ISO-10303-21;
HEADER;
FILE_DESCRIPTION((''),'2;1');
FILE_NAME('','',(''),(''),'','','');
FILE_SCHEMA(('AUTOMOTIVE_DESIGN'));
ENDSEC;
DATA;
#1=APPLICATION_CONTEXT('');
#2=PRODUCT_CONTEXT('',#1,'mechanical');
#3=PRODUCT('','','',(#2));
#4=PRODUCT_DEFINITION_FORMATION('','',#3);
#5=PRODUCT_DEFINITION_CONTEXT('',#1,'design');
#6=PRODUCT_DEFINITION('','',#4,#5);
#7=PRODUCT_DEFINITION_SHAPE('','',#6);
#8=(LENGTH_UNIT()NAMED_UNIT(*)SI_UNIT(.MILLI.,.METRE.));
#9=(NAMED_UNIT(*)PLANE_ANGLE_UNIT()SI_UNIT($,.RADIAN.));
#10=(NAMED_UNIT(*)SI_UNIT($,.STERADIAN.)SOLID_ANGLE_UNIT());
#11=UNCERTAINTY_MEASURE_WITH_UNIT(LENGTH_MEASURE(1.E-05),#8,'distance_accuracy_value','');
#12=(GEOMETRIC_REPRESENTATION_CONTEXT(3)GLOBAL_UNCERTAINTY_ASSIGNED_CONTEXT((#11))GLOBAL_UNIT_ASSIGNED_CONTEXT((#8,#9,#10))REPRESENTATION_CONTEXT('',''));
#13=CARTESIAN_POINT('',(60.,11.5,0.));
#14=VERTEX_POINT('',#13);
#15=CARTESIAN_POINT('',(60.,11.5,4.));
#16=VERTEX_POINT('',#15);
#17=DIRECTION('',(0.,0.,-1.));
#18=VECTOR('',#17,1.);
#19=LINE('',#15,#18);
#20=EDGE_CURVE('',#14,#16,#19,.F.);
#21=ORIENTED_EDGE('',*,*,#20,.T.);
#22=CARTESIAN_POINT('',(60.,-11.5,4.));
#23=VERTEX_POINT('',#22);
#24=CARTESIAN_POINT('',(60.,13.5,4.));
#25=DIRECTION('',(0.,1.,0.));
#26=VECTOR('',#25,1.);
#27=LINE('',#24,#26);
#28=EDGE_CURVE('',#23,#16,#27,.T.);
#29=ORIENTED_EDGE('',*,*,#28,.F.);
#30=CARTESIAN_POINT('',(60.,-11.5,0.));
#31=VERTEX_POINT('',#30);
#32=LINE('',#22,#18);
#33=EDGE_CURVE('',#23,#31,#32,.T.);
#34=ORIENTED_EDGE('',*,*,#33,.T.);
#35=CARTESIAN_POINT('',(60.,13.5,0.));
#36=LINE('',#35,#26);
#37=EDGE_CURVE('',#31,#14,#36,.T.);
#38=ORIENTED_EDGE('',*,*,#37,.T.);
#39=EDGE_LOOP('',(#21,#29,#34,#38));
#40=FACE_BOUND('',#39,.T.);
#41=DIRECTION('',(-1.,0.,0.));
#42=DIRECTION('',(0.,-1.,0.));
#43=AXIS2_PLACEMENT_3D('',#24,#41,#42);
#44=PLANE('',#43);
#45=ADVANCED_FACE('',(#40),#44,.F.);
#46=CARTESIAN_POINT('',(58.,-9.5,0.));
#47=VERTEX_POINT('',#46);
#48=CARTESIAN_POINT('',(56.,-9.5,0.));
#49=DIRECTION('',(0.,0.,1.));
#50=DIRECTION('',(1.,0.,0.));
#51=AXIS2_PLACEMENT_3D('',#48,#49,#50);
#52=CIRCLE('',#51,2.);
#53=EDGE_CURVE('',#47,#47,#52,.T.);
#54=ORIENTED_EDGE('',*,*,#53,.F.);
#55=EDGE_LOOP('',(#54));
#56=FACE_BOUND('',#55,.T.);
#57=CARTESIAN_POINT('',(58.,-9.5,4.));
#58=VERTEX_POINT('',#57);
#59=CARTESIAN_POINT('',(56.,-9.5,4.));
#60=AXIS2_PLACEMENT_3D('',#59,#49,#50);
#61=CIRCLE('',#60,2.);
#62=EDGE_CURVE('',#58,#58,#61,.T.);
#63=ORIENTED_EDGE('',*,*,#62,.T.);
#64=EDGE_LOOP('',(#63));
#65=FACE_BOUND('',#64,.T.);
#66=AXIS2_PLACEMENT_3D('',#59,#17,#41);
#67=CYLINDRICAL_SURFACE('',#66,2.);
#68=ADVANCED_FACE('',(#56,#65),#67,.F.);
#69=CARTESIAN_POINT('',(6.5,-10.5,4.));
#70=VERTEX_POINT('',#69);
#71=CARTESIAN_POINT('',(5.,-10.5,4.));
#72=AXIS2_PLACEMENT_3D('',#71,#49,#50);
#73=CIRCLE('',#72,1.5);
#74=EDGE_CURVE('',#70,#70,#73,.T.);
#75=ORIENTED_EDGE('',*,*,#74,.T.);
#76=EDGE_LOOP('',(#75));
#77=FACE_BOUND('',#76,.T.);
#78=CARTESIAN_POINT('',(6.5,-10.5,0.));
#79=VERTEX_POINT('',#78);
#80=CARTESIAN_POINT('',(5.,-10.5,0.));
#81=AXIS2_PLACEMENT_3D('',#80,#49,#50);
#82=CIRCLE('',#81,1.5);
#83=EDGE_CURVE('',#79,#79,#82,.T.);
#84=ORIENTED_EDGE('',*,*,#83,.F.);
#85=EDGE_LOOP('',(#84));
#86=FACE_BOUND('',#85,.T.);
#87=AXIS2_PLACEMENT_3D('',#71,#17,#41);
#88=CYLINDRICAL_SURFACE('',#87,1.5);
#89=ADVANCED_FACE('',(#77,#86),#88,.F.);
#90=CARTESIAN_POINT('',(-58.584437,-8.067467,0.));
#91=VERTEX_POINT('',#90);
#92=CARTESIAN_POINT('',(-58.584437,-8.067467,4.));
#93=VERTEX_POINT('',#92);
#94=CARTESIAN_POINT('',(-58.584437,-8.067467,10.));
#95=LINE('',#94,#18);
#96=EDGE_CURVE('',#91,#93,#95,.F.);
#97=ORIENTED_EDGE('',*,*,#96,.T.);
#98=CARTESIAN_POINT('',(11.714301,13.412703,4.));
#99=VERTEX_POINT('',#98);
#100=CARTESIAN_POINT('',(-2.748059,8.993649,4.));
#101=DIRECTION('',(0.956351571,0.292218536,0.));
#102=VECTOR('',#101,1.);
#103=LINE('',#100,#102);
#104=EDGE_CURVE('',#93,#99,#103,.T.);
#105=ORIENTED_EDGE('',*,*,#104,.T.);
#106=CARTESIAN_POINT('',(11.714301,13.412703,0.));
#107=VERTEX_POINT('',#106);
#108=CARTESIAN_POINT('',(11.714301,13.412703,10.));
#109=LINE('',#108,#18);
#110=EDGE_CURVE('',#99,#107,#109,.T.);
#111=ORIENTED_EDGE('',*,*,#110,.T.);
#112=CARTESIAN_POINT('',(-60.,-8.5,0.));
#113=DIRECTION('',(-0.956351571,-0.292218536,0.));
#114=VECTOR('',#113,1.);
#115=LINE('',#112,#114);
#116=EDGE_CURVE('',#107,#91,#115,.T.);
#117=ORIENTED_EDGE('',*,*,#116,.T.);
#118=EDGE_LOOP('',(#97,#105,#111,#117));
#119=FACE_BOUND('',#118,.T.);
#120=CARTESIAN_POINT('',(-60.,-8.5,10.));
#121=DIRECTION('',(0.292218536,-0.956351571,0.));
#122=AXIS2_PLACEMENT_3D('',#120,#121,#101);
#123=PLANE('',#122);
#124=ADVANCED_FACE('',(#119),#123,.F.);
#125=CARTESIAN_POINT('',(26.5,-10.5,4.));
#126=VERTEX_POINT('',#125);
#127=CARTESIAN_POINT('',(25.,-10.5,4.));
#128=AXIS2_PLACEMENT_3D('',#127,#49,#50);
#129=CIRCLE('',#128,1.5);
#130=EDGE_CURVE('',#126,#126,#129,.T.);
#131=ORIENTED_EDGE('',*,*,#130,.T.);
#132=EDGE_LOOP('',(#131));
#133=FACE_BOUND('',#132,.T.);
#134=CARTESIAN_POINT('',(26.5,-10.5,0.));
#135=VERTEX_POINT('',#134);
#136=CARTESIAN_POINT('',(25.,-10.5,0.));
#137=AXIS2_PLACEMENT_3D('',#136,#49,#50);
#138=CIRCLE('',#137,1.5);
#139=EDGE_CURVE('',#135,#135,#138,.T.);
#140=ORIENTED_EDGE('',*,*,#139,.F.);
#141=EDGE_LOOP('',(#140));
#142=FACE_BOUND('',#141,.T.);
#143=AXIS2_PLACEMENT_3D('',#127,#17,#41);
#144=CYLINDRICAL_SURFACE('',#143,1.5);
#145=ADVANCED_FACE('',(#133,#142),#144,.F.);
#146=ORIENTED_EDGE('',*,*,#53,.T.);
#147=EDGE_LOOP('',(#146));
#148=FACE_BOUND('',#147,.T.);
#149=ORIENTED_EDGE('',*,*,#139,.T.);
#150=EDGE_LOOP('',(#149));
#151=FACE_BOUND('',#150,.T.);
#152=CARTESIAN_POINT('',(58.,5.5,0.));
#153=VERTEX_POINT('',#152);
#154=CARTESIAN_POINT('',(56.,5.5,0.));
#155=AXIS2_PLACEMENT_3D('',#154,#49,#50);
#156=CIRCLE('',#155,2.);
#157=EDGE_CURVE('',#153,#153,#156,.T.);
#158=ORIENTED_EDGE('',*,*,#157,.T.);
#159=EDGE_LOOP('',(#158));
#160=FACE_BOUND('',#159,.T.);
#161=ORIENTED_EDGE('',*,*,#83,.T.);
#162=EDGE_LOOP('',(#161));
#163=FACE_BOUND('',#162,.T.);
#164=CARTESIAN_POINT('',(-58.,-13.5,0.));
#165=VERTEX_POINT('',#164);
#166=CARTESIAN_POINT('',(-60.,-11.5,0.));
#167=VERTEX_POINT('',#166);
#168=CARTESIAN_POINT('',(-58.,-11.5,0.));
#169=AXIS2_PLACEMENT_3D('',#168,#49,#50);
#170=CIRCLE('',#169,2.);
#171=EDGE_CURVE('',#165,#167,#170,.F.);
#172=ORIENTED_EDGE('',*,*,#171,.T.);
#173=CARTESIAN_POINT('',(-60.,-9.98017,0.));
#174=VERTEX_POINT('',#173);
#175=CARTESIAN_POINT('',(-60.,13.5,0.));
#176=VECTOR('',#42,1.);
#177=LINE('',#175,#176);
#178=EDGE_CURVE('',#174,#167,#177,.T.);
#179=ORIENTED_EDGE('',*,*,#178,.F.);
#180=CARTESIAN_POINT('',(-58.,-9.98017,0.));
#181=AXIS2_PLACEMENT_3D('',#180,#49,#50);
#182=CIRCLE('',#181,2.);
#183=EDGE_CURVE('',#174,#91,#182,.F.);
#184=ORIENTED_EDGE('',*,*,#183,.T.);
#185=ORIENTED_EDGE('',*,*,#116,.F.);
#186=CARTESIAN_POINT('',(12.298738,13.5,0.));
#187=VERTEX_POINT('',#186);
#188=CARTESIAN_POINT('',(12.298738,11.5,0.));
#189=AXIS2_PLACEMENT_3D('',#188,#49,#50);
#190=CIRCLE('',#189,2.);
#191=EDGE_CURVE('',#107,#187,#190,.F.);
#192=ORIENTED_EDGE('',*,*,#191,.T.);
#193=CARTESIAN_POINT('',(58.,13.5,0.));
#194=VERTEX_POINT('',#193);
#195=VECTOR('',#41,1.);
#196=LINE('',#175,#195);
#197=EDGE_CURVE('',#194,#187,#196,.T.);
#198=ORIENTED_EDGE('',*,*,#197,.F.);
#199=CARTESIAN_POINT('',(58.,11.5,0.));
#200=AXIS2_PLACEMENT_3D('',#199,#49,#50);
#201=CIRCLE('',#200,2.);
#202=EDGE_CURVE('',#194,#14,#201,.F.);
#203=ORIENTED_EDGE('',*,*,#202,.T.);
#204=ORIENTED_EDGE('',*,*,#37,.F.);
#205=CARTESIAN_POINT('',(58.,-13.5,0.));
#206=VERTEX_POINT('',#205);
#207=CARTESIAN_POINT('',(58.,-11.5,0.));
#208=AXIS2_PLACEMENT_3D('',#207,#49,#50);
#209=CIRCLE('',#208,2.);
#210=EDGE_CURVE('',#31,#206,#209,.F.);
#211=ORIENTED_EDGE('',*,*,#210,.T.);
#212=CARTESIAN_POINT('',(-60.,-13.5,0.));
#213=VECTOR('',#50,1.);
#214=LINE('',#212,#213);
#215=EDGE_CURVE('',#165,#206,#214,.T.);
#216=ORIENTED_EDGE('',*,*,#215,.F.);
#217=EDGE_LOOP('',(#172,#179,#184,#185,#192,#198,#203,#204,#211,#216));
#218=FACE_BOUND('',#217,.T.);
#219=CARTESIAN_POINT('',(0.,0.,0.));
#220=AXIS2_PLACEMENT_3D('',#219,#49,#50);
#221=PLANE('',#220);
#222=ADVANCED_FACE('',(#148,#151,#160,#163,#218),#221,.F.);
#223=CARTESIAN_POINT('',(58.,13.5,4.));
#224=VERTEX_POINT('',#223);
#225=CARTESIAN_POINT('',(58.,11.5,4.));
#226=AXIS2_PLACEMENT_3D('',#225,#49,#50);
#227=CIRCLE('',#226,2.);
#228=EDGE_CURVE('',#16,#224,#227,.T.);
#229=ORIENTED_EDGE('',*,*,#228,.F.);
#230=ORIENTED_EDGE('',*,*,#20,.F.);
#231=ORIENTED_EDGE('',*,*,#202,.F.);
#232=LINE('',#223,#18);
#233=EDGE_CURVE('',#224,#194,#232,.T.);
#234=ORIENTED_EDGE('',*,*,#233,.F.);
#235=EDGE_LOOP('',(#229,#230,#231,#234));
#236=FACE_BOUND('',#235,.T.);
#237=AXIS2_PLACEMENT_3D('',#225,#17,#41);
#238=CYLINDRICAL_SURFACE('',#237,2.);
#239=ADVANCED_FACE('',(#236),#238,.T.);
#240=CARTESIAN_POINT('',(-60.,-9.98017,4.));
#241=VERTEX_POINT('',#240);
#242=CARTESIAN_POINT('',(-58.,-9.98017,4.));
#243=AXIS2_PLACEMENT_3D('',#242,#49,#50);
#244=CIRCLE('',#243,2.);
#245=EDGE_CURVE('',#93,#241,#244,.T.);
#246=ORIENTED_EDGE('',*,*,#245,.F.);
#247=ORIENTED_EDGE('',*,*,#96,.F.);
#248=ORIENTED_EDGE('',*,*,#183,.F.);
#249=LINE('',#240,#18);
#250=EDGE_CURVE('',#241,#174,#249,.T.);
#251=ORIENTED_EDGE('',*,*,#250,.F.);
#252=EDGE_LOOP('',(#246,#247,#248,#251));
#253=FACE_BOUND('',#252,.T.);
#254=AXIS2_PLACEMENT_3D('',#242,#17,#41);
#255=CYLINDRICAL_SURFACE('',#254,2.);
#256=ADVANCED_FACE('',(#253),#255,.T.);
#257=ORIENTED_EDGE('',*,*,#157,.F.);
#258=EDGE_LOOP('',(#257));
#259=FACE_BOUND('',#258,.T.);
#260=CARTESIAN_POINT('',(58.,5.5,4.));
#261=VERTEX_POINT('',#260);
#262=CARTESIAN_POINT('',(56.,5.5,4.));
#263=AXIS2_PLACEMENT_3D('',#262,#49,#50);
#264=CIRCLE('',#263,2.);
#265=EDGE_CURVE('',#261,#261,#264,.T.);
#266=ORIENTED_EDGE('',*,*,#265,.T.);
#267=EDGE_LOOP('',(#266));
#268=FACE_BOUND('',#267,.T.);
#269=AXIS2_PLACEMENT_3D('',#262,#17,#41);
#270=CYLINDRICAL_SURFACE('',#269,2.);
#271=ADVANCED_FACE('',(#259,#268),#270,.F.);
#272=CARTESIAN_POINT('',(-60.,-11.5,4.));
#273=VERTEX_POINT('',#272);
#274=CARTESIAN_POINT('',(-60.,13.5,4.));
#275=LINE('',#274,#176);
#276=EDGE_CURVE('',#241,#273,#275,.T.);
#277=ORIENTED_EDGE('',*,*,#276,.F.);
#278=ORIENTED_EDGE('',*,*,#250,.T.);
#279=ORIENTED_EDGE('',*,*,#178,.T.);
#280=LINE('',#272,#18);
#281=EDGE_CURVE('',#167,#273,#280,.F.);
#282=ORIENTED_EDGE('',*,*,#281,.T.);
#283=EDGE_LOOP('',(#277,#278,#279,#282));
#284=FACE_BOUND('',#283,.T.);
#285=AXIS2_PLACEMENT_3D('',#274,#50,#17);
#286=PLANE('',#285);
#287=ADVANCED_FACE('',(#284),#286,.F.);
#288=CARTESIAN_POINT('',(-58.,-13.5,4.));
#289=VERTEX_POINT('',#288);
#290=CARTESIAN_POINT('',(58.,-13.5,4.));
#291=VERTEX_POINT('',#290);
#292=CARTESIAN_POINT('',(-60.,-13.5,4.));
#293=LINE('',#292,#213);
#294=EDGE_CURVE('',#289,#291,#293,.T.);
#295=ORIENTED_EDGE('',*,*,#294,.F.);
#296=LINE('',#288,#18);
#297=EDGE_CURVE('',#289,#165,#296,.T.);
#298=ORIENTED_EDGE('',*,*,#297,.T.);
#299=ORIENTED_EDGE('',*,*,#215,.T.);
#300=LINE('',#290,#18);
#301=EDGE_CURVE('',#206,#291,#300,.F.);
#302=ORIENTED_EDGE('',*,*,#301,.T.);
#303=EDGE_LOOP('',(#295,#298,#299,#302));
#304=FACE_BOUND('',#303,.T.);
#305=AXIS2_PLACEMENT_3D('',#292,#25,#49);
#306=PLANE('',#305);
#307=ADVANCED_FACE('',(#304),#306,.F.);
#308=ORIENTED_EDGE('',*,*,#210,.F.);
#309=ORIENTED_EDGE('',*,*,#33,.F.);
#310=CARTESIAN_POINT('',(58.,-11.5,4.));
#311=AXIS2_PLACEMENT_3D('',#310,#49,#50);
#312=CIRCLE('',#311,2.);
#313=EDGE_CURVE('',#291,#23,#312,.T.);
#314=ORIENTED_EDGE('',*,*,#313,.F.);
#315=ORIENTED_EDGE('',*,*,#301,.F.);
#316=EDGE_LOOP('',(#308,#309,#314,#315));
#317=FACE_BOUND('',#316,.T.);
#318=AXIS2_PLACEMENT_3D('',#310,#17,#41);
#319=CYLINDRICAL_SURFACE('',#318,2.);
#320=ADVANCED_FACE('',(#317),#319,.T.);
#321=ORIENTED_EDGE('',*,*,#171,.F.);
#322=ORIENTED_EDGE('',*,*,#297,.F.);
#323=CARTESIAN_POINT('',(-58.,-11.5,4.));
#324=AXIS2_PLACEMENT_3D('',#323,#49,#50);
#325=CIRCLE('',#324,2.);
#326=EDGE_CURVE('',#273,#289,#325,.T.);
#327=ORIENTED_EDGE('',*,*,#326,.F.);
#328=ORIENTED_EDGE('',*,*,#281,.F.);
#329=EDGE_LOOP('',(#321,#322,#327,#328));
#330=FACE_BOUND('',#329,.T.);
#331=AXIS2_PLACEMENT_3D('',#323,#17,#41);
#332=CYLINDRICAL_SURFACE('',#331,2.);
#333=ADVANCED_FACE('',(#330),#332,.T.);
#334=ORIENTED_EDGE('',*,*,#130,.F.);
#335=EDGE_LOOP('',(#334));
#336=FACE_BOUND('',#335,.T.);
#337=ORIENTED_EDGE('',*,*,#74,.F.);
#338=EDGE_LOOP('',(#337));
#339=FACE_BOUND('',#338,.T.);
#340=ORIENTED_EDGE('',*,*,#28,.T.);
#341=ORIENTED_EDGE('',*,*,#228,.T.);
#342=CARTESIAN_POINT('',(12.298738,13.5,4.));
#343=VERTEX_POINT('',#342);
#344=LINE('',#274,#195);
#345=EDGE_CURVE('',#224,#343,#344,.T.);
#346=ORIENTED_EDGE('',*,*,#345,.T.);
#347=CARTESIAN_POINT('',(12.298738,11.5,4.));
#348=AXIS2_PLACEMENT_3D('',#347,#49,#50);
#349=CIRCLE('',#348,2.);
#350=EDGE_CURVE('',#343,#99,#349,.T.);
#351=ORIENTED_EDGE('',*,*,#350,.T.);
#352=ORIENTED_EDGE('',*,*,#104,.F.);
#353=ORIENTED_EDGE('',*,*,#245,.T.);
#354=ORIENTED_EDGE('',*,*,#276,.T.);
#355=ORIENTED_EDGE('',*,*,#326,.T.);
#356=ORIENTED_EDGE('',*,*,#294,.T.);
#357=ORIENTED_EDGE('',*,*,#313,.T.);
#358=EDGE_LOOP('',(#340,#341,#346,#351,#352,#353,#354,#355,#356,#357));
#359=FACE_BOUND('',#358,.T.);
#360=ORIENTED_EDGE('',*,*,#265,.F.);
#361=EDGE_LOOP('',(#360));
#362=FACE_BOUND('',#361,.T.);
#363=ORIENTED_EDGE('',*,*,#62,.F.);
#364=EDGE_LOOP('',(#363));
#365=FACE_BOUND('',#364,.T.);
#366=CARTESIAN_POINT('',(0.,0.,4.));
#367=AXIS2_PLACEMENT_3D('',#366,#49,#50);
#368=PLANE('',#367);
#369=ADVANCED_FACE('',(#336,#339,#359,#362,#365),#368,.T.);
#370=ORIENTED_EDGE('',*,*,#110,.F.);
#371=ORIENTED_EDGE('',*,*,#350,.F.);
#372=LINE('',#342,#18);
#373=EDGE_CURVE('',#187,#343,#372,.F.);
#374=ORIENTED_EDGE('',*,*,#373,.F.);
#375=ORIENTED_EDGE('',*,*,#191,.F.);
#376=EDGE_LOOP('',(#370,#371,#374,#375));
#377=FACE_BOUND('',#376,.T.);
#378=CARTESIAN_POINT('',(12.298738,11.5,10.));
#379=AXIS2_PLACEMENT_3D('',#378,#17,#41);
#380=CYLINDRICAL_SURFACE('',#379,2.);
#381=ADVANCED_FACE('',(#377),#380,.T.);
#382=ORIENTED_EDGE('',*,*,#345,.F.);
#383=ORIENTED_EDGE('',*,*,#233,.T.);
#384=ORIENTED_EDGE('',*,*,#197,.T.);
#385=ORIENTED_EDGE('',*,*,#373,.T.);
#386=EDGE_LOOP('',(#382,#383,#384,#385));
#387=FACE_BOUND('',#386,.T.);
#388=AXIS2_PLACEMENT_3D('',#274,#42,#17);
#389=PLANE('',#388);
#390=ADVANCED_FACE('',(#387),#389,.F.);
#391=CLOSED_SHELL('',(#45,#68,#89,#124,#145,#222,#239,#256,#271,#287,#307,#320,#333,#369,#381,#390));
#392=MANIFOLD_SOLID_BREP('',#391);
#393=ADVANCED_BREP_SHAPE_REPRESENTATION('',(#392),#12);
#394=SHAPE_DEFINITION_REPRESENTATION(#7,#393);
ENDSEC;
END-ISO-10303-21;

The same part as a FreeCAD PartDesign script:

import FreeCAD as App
import Part
import Sketcher
from FreeCAD import Vector


def edges_at(feature, points):
    """Names of the edges that pass closest to the given points."""
    edges = feature.Shape.Edges
    near = lambda p: min(range(len(edges)), key=lambda i: edges[i].distToShape(Part.Vertex(*p))[0])
    return sorted({f"Edge{near(p) + 1}" for p in points})

doc = App.newDocument("Part")
body = doc.addObject("PartDesign::Body", "Body")

# Sketch on XY plane
sketch1 = body.newObject("Sketcher::SketchObject", "Sketch")
sketch1.AttachmentSupport = (doc.getObject("XY_Plane"), [""])
sketch1.MapMode = "FlatFace"
sketch1.addGeometry([
    Part.LineSegment(Vector(-60, 13.5, 0), Vector(-60, -13.5, 0)),  # 0
    Part.LineSegment(Vector(-60, -13.5, 0), Vector(60, -13.5, 0)),  # 1
    Part.LineSegment(Vector(60, -13.5, 0), Vector(60, 13.5, 0)),  # 2
    Part.LineSegment(Vector(60, 13.5, 0), Vector(-60, 13.5, 0)),  # 3
    Part.Circle(Vector(5, -10.5, 0), Vector(0, 0, 1), 1.5),  # 4
    Part.Circle(Vector(25, -10.5, 0), Vector(0, 0, 1), 1.5),  # 5
    Part.Circle(Vector(56, -9.5, 0), Vector(0, 0, 1), 2),  # 6
    Part.Circle(Vector(56, 5.5, 0), Vector(0, 0, 1), 2),  # 7
], False)
sketch1.addConstraint([
    Sketcher.Constraint("Coincident", 0, 2, 1, 1),
    Sketcher.Constraint("Coincident", 1, 2, 2, 1),
    Sketcher.Constraint("Coincident", 2, 2, 3, 1),
    Sketcher.Constraint("Coincident", 3, 2, 0, 1),
    Sketcher.Constraint("Vertical", 0),
    Sketcher.Constraint("Horizontal", 1),
    Sketcher.Constraint("Vertical", 2),
    Sketcher.Constraint("Horizontal", 3),
    Sketcher.Constraint("Equal", 4, 5),
    Sketcher.Constraint("Equal", 6, 7),
    Sketcher.Constraint("Symmetric", 0, 2, 2, 2, -1, 1),
    Sketcher.Constraint("Horizontal", 4, 3, 5, 3),
    Sketcher.Constraint("Vertical", 6, 3, 7, 3),
    Sketcher.Constraint("Diameter", 4, 3.0),
    Sketcher.Constraint("Diameter", 6, 4.0),
    Sketcher.Constraint("DistanceX", 1, 1, 1, 2, 120.0),
    Sketcher.Constraint("DistanceY", 0, 2, 0, 1, 27.0),
    Sketcher.Constraint("DistanceX", -1, 1, 4, 3, 5.0),
    Sketcher.Constraint("DistanceX", -1, 1, 5, 3, 25.0),
    Sketcher.Constraint("DistanceX", -1, 1, 6, 3, 56.0),
    Sketcher.Constraint("DistanceY", 5, 3, 6, 3, 1.0),
    Sketcher.Constraint("DistanceY", 6, 3, 7, 3, 15.0),
    Sketcher.Constraint("DistanceY", 0, 2, 4, 3, 3.0),
])
pad1 = body.newObject("PartDesign::Pad", "Pad")
pad1.Profile = sketch1
pad1.Length = 4

# Sketch on XY plane
sketch2 = body.newObject("Sketcher::SketchObject", "Sketch001")
sketch2.AttachmentSupport = (doc.getObject("XY_Plane"), [""])
sketch2.MapMode = "FlatFace"
sketch2.addGeometry([
    Part.LineSegment(Vector(12, 13.5, 0), Vector(-60, -8.5, 0)),
    Part.LineSegment(Vector(-60, -8.5, 0), Vector(-60, 13.5, 0)),
    Part.LineSegment(Vector(-60, 13.5, 0), Vector(12, 13.5, 0)),
], False)
sketch2.addConstraint([
    Sketcher.Constraint("Coincident", 0, 2, 1, 1),
    Sketcher.Constraint("Coincident", 1, 2, 2, 1),
    Sketcher.Constraint("Coincident", 2, 2, 0, 1),
    Sketcher.Constraint("Vertical", 1),
    Sketcher.Constraint("Horizontal", 2),
    Sketcher.Constraint("DistanceX", 2, 1, 2, 2, 72.0),
    Sketcher.Constraint("DistanceY", 1, 1, 1, 2, 22.0),
    Sketcher.Constraint("DistanceX", 0, 2, -1, 1, 60.0),
    Sketcher.Constraint("DistanceY", 0, 2, -1, 1, 8.5),
])
pocket1 = body.newObject("PartDesign::Pocket", "Pocket")
pocket1.Profile = sketch2
pocket1.Length = 10
pocket1.Reversed = True
doc.recompute()

fillet = body.newObject("PartDesign::Fillet", "Fillet")
fillet.Base = (pocket1, edges_at(pocket1, [
    (-60, -8.5, 2),
    (12, 13.5, 2),
    (60, -13.5, 2),
    (-60, -13.5, 2),
    (60, 13.5, 2),
]))
fillet.Radius = 2

doc.recompute()
